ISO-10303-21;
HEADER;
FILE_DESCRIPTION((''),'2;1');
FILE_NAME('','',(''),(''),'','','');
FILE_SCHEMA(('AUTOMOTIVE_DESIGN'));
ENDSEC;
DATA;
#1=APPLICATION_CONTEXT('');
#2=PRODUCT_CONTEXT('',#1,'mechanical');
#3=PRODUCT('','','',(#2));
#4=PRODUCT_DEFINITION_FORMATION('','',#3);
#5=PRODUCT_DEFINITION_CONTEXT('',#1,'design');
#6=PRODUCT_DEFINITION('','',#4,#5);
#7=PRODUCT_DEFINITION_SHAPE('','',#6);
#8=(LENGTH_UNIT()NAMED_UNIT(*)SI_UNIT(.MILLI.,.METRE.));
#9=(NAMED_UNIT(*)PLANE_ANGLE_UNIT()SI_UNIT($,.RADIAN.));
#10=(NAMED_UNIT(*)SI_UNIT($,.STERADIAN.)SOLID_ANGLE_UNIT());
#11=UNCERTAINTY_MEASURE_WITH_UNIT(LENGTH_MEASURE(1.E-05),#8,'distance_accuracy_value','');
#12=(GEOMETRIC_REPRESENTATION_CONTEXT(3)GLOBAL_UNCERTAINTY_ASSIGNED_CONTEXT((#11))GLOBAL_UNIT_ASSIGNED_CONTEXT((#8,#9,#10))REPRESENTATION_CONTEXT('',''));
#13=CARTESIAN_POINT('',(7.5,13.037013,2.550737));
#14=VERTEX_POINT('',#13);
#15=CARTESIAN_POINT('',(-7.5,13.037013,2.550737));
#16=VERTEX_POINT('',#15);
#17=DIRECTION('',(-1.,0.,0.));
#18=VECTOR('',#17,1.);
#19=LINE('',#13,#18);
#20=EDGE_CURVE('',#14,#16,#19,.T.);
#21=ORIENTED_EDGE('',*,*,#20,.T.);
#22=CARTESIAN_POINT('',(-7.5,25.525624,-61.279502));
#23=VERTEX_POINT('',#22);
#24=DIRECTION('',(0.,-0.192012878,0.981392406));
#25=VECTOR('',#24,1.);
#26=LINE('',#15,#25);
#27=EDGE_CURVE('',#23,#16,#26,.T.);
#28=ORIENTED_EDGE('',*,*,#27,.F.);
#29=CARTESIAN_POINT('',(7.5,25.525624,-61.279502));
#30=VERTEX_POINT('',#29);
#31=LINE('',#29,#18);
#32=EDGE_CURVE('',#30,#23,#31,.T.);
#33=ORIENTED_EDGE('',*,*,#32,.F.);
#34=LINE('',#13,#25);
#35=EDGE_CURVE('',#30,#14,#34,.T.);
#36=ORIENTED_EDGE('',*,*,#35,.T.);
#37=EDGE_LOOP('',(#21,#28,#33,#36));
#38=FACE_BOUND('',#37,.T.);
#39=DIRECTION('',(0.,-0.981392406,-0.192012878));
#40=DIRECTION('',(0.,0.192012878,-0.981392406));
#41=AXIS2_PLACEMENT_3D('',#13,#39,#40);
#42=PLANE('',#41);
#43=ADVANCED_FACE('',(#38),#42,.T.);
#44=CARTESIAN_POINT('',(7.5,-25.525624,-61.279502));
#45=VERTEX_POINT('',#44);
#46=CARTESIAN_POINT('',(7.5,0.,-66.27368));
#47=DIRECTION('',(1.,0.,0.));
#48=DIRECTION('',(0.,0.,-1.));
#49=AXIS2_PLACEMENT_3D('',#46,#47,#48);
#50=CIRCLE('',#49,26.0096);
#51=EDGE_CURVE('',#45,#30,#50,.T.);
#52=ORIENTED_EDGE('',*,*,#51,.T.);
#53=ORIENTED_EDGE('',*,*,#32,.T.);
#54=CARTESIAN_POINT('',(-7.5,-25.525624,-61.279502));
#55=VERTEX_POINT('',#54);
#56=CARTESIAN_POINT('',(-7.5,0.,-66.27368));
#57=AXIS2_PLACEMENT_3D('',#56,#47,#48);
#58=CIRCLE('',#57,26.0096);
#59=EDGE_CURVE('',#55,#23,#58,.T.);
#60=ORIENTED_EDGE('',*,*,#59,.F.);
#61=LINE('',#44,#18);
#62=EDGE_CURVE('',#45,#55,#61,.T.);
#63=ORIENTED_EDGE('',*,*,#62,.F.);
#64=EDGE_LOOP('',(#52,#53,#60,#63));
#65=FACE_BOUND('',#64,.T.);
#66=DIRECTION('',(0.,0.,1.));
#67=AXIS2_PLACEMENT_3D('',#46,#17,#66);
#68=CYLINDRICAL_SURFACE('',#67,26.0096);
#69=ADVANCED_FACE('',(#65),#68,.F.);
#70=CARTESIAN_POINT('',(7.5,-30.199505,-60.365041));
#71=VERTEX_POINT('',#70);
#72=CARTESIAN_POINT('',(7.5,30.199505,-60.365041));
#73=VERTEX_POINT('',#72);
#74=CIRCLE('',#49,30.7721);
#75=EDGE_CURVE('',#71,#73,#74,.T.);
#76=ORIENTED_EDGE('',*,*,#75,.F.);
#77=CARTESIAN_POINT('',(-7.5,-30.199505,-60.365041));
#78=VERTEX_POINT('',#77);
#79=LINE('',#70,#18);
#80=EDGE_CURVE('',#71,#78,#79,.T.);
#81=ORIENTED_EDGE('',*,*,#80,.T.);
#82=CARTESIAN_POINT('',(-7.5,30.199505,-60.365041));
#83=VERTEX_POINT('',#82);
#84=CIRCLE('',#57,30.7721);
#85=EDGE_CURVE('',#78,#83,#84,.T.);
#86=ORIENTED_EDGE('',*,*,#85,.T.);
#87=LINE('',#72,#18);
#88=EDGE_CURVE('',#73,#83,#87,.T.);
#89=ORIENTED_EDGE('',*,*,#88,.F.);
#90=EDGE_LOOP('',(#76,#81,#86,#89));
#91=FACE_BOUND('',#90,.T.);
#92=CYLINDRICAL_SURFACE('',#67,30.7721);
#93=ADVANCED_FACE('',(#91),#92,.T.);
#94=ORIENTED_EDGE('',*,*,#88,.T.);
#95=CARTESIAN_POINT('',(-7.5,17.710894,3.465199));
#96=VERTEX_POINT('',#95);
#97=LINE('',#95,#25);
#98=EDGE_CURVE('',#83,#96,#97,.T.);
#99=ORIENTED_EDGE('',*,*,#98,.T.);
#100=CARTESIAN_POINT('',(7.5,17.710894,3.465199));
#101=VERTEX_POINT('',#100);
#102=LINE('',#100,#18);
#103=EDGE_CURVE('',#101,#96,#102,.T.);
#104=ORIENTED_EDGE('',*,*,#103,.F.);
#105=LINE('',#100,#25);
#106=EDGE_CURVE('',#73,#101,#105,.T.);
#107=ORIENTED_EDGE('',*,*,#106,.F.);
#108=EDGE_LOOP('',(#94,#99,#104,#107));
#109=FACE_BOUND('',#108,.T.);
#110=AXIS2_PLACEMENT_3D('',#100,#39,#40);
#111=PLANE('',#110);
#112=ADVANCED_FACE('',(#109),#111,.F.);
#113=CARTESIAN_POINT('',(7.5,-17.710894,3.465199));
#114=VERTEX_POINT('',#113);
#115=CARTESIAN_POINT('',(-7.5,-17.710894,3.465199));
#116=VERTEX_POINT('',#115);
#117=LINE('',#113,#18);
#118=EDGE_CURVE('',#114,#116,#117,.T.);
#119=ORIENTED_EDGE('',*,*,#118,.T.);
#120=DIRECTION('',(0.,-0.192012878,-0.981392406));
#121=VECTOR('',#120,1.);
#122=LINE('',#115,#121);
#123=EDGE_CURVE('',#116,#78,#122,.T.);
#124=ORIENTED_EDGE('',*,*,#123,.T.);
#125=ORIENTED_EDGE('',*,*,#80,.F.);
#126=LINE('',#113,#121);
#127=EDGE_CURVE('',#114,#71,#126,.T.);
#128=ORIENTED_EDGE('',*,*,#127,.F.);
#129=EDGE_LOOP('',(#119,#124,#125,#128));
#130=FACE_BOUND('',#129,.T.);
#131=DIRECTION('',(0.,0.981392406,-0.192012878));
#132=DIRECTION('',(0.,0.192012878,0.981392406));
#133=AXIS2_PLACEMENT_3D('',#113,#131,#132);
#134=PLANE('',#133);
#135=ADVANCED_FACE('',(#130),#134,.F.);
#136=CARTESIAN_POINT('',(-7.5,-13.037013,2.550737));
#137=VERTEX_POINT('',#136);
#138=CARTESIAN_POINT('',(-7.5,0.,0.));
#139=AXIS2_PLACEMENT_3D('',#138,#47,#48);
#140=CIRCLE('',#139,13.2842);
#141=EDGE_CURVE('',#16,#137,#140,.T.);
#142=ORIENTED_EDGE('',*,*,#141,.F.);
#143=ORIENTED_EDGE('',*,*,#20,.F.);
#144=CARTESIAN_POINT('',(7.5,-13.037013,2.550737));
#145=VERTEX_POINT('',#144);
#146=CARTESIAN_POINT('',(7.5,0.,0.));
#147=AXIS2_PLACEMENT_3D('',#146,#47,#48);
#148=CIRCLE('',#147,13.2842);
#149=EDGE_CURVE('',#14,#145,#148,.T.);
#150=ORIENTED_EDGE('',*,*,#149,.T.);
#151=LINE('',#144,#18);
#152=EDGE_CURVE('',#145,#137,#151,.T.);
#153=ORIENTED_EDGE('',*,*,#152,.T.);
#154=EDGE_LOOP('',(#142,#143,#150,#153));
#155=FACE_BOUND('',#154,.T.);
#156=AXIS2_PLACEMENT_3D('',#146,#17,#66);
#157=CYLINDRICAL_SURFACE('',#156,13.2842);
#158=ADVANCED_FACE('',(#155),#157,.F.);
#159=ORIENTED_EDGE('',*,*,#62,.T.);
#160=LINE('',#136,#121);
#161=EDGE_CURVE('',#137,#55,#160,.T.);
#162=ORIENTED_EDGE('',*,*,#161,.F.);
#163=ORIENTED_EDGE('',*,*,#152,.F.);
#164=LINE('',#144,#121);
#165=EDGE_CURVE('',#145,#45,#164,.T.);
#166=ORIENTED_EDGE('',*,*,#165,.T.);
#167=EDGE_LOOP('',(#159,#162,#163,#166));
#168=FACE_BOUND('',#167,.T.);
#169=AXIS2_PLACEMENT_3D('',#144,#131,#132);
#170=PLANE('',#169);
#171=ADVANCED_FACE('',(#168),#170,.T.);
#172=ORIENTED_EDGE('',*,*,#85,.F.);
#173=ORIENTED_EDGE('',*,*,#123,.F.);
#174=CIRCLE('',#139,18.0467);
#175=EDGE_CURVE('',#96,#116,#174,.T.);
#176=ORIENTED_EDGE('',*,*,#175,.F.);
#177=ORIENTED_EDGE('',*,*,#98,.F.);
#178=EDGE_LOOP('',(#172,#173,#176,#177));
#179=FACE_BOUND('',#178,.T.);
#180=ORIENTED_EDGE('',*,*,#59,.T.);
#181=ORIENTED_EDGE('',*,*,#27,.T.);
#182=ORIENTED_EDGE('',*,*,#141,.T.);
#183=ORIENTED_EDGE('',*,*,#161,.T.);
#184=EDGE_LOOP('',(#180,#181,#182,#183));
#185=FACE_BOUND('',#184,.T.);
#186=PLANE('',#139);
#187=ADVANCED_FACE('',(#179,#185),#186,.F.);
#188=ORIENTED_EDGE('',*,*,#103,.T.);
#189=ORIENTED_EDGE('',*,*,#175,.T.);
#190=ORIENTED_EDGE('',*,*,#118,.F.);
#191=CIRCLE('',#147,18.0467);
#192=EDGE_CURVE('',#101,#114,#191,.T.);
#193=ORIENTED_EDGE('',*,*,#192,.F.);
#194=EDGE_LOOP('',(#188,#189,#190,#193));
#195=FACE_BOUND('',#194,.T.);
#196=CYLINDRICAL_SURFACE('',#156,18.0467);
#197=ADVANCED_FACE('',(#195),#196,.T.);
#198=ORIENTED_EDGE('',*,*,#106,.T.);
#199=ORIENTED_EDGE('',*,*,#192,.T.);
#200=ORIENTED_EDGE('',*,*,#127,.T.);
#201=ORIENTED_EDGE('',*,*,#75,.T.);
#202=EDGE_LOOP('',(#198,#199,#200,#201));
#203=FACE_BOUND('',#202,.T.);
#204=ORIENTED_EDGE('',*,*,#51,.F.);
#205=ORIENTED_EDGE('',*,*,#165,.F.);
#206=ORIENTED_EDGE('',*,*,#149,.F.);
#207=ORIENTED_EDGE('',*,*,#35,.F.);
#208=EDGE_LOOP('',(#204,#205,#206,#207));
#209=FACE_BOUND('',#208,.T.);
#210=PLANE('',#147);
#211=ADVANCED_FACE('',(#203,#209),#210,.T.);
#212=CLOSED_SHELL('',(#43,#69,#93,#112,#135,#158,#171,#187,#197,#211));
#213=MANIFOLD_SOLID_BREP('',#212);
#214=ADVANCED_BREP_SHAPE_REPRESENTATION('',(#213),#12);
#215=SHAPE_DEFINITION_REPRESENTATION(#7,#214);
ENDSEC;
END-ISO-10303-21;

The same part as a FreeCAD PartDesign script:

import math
import FreeCAD as App
import Part
import Sketcher

V = App.Vector
Q = App.Units.Quantity

doc = App.newDocument("Part")
body = doc.addObject("PartDesign::Body", "Body")

# Sketch on YZ plane
sketch1 = body.newObject("Sketcher::SketchObject", "Sketch")
sketch1.AttachmentSupport = (doc.getObject("YZ_Plane"), [""])
sketch1.MapMode = "FlatFace"
sketch1.addGeometry(Part.LineSegment(V(30, -60, 0), V(18, 3, 0)), False)
sketch1.addGeometry(Part.ArcOfCircle(Part.Circle(V(0, 0, 0), V(0, 0, 1), 18), math.radians(11), math.radians(169)), False)
sketch1.addGeometry(Part.LineSegment(V(-18, 3, 0), V(-30, -60, 0)), False)
sketch1.addGeometry(Part.ArcOfCircle(Part.Circle(V(0, -66, 0), V(0, 0, 1), 31), math.radians(169), math.radians(371)), False)
sketch1.addGeometry(Part.LineSegment(V(13, 3, 0), V(26, -61, 0)), False)
sketch1.addGeometry(Part.ArcOfCircle(Part.Circle(V(0, -66, 0), V(0, 0, 1), 26), math.radians(169), math.radians(371)), False)
sketch1.addGeometry(Part.LineSegment(V(-26, -61, 0), V(-13, 3, 0)), False)
sketch1.addGeometry(Part.ArcOfCircle(Part.Circle(V(0, 0, 0), V(0, 0, 1), 13), math.radians(11), math.radians(169)), False)
sketch1.addConstraint(Sketcher.Constraint("Tangent", 0, 2, 1, 1))
sketch1.addConstraint(Sketcher.Constraint("Tangent", 1, 2, 2, 1))
sketch1.addConstraint(Sketcher.Constraint("Tangent", 2, 2, 3, 1))
sketch1.addConstraint(Sketcher.Constraint("Tangent", 3, 2, 0, 1))
sketch1.addConstraint(Sketcher.Constraint("Tangent", 4, 2, 5, 2))
sketch1.addConstraint(Sketcher.Constraint("Tangent", 5, 1, 6, 1))
sketch1.addConstraint(Sketcher.Constraint("Tangent", 6, 2, 7, 2))
sketch1.addConstraint(Sketcher.Constraint("Tangent", 7, 1, 4, 1))
sketch1.addConstraint(Sketcher.Constraint("Coincident", 1, 3, -1, 1))
sketch1.addConstraint(Sketcher.Constraint("Coincident", 7, 3, -1, 1))
sketch1.addConstraint(Sketcher.Constraint("Coincident", 5, 3, 3, 3))
sketch1.addConstraint(Sketcher.Constraint("PointOnObject", 3, 3, -2))
sketch1.addConstraint(Sketcher.Constraint("Parallel", 0, 4))
sketch1.addConstraint(Sketcher.Constraint("Radius", 5, Q("1.024 in")))
sketch1.addConstraint(Sketcher.Constraint("Radius", 7, Q("0.523 in")))
sketch1.addConstraint(Sketcher.Constraint("Radius", 1, Q("0.7105 in")))
sketch1.addConstraint(Sketcher.Constraint("DistanceY", 3, 3, -1, 1, Q("2.6092 in")))
pad1 = body.newObject("PartDesign::Pad", "Pad")
pad1.Profile = sketch1
pad1.Length = 15
pad1.Midplane = True

doc.recompute()
